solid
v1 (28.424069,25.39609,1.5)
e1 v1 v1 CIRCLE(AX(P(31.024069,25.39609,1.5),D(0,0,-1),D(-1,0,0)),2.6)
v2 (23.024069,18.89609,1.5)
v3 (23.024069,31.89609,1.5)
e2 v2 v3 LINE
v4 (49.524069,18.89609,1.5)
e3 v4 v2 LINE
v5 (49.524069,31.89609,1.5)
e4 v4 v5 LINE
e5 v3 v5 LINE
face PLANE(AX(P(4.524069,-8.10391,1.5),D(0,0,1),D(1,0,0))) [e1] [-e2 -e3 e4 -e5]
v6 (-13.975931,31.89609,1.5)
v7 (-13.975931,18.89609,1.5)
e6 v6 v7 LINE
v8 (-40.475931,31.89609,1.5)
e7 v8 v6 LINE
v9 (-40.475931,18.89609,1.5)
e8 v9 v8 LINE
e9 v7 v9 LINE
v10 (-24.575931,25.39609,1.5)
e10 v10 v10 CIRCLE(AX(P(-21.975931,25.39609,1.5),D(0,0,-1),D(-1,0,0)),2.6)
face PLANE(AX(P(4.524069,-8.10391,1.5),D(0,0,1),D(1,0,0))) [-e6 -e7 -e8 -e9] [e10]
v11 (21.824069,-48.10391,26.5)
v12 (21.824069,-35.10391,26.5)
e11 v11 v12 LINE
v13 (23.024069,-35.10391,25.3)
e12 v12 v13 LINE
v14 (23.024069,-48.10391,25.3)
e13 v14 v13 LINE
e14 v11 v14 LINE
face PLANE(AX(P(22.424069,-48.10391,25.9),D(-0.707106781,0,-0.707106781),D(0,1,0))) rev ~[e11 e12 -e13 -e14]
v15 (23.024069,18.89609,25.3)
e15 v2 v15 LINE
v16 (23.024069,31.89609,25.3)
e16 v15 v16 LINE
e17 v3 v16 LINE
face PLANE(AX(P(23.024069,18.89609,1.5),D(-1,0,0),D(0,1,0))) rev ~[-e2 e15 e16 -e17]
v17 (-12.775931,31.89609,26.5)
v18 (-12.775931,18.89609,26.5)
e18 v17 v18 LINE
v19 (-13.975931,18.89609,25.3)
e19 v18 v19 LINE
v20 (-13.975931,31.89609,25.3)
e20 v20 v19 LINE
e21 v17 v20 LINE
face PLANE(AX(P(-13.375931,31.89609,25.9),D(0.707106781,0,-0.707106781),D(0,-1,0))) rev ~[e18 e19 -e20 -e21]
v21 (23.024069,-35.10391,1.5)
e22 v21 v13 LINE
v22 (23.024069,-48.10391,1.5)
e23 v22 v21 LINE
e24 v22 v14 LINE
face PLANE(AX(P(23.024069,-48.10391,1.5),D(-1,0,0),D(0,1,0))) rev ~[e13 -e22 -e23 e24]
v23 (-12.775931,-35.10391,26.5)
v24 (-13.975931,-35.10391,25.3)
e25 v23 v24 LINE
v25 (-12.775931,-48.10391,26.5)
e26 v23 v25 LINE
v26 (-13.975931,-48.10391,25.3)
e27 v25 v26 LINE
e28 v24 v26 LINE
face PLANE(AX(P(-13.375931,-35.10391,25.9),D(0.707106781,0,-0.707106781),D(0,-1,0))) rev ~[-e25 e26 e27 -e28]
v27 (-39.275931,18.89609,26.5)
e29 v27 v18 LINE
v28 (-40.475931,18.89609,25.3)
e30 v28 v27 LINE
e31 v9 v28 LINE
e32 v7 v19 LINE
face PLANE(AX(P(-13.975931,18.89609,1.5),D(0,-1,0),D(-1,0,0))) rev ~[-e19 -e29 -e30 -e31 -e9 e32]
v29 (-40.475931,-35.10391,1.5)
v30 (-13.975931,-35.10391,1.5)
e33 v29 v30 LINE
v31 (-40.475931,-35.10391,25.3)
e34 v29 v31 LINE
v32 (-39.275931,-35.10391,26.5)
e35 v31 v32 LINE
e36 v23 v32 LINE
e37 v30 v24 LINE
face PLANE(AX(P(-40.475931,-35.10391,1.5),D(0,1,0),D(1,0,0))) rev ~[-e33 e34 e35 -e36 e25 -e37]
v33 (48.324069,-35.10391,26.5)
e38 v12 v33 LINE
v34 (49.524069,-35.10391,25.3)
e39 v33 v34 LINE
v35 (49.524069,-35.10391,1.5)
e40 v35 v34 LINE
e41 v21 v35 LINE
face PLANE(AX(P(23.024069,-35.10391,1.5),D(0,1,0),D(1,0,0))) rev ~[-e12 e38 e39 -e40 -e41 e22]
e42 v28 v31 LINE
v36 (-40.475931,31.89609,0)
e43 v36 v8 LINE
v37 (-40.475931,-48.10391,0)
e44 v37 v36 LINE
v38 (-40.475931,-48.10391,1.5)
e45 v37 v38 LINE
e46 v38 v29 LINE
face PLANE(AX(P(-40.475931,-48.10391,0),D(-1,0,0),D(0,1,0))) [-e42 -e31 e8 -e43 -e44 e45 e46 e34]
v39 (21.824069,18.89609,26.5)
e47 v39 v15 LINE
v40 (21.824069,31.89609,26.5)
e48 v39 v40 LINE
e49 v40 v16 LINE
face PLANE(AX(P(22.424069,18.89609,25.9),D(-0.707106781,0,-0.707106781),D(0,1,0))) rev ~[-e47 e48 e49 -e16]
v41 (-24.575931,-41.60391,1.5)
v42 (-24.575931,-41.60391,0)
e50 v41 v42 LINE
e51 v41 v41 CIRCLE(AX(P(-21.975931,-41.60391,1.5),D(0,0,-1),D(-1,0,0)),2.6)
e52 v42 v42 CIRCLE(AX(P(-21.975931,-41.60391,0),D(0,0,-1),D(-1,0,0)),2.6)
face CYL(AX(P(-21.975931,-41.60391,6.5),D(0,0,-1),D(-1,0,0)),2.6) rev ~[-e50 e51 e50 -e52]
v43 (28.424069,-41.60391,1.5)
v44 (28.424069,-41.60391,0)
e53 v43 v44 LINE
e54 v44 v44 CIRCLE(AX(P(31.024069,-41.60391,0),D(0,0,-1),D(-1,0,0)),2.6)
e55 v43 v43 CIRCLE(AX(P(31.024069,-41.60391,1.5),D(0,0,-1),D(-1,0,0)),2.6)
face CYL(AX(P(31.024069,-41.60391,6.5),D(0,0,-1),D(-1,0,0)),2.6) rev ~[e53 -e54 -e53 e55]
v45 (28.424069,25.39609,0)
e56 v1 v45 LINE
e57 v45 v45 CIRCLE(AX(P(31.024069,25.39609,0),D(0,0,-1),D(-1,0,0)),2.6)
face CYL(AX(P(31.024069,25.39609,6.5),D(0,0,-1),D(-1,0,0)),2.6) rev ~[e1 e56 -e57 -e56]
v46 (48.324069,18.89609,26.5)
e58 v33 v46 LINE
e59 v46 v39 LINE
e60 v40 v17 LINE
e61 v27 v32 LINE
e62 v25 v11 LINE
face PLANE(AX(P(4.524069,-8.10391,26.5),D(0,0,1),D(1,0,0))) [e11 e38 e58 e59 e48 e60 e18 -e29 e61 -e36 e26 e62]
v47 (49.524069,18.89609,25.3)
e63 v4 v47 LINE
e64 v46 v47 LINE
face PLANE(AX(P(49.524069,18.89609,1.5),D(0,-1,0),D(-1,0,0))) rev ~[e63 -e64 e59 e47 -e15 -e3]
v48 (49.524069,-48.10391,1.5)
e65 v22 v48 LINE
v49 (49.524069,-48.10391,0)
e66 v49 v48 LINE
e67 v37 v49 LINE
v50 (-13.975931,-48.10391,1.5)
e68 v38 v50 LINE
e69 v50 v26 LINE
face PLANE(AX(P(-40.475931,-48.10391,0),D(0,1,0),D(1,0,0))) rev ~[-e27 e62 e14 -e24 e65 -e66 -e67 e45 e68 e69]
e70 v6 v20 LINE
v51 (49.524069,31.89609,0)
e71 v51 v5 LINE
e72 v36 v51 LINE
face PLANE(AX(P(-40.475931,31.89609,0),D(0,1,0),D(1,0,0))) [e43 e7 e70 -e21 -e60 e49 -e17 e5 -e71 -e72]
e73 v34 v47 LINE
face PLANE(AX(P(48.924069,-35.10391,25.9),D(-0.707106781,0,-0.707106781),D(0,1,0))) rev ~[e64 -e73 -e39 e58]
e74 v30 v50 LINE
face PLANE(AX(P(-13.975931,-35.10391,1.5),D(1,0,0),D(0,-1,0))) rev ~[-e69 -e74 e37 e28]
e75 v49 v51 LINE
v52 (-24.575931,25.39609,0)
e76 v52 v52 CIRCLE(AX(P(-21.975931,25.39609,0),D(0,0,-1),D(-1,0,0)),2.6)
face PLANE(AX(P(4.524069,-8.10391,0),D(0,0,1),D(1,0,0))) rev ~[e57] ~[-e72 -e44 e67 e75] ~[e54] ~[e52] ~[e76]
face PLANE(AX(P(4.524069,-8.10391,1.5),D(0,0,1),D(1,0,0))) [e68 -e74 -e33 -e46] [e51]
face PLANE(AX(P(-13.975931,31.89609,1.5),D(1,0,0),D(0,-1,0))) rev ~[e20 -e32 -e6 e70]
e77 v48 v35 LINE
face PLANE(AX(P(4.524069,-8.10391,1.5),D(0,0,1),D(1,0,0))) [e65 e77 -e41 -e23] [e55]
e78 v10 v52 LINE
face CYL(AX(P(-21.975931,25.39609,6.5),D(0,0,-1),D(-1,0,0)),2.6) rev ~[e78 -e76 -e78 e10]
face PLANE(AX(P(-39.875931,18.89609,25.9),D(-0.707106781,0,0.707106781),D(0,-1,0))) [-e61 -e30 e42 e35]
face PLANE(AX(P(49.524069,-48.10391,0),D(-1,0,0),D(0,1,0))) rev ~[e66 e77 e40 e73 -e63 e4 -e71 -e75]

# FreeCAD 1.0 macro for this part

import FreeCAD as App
import Part
import Sketcher


def edges_at(feature, points):
    """Names of the edges that pass closest to the given points."""
    edges = feature.Shape.Edges
    near = lambda p: min(range(len(edges)), key=lambda i: edges[i].distToShape(Part.Vertex(*p))[0])
    return sorted({f"Edge{near(p) + 1}" for p in points})


def add_polygon(sketch, points):
    """Adds a closed chain of lines whose ends are joined by coincident constraints."""
    first, n = sketch.GeometryCount, len(points)
    for a, b in zip(points, points[1:] + points[:1]):
        sketch.addGeometry(Part.LineSegment(App.Vector(*a, 0), App.Vector(*b, 0)), False)
    for i in range(n):
        sketch.addConstraint(Sketcher.Constraint("Coincident", first + i, 2, first + (i + 1) % n, 1))

doc = App.newDocument("Part")
body = doc.addObject("PartDesign::Body", "Body")

sketch1 = body.newObject("Sketcher::SketchObject", "Sketch")
sketch1.AttachmentSupport = (doc.getObject("XY_Plane"), [""])
sketch1.MapMode = "FlatFace"
add_polygon(sketch1, [(-40, 32), (-40, -48), (50, -48), (50, 32)])
sketch1.addConstraint(Sketcher.Constraint("Vertical", 0))
sketch1.addConstraint(Sketcher.Constraint("Horizontal", 1))
sketch1.addConstraint(Sketcher.Constraint("Vertical", 2))
sketch1.addConstraint(Sketcher.Constraint("Horizontal", 3))
sketch1.addConstraint(Sketcher.Constraint("DistanceX", 1, 1, 1, 2, 90.0))
sketch1.addConstraint(Sketcher.Constraint("DistanceY", 0, 2, 0, 1, 80.0))
sketch1.addConstraint(Sketcher.Constraint("DistanceX", 0, 2, -1, 1, 40.475931))
sketch1.addConstraint(Sketcher.Constraint("DistanceY", 0, 2, -1, 1, 48.10391))
pad1 = body.newObject("PartDesign::Pad", "Pad")
pad1.Profile = sketch1
pad1.Length = 1.5

sketch2 = body.newObject("Sketcher::SketchObject", "Sketch001")
sketch2.AttachmentSupport = (doc.getObject("XY_Plane"), [""])
sketch2.MapMode = "FlatFace"
sketch2.AttachmentOffset = App.Placement(App.Vector(0, 0, 1.5), App.Rotation())
add_polygon(sketch2, [(-14, 32), (-14, 19), (-40, 19), (-40, -35), (-14, -35), (-14, -48), (23, -48), (23, -35), (50, -35), (50, 19), (23, 19), (23, 32)])
sketch2.addConstraint(Sketcher.Constraint("Vertical", 0))
sketch2.addConstraint(Sketcher.Constraint("Horizontal", 1))
sketch2.addConstraint(Sketcher.Constraint("Vertical", 2))
sketch2.addConstraint(Sketcher.Constraint("Horizontal", 3))
sketch2.addConstraint(Sketcher.Constraint("Vertical", 4))
sketch2.addConstraint(Sketcher.Constraint("Horizontal", 5))
sketch2.addConstraint(Sketcher.Constraint("Vertical", 6))
sketch2.addConstraint(Sketcher.Constraint("Horizontal", 7))
sketch2.addConstraint(Sketcher.Constraint("Vertical", 8))
sketch2.addConstraint(Sketcher.Constraint("Horizontal", 9))
sketch2.addConstraint(Sketcher.Constraint("Vertical", 10))
sketch2.addConstraint(Sketcher.Constraint("Horizontal", 11))
sketch2.addConstraint(Sketcher.Constraint("Horizontal", 3, 2, 6, 2))
sketch2.addConstraint(Sketcher.Constraint("Horizontal", 1, 2, 8, 2))
sketch2.addConstraint(Sketcher.Constraint("Vertical", 0, 2, 3, 2))
sketch2.addConstraint(Sketcher.Constraint("Vertical", 6, 2, 9, 2))
sketch2.addConstraint(Sketcher.Constraint("Equal", 3, 7))
sketch2.addConstraint(Sketcher.Constraint("Equal", 0, 4))
sketch2.addConstraint(Sketcher.Constraint("DistanceX", 5, 1, 5, 2, 37.0))
sketch2.addConstraint(Sketcher.Constraint("DistanceY", 0, 2, 0, 1, 13.0))
sketch2.addConstraint(Sketcher.Constraint("DistanceY", 2, 2, 2, 1, 54.0))
sketch2.addConstraint(Sketcher.Constraint("DistanceX", 1, 2, 1, 1, 26.5))
sketch2.addConstraint(Sketcher.Constraint("DistanceX", 0, 2, -1, 1, 13.975931))
sketch2.addConstraint(Sketcher.Constraint("DistanceY", -1, 1, 0, 2, 18.89609))
pad2 = body.newObject("PartDesign::Pad", "Pad001")
pad2.Profile = sketch2
pad2.Length = 25

sketch3 = body.newObject("Sketcher::SketchObject", "Sketch002")
sketch3.AttachmentSupport = (doc.getObject("XY_Plane"), [""])
sketch3.MapMode = "FlatFace"
sketch3.AttachmentOffset = App.Placement(App.Vector(0, 0, 1.5), App.Rotation())
sketch3.addGeometry(Part.Circle(App.Vector(-22, 25.4, 0), App.Vector(0, 0, 1), 2.6), False)
sketch3.addGeometry(Part.Circle(App.Vector(31, 25.4, 0), App.Vector(0, 0, 1), 2.6), False)
sketch3.addGeometry(Part.Circle(App.Vector(31, -41.6, 0), App.Vector(0, 0, 1), 2.6), False)
sketch3.addGeometry(Part.Circle(App.Vector(-22, -41.6, 0), App.Vector(0, 0, 1), 2.6), False)
sketch3.addConstraint(Sketcher.Constraint("Equal", 0, 1))
sketch3.addConstraint(Sketcher.Constraint("Equal", 1, 2))
sketch3.addConstraint(Sketcher.Constraint("Equal", 2, 3))
sketch3.addConstraint(Sketcher.Constraint("Horizontal", 0, 3, 1, 3))
sketch3.addConstraint(Sketcher.Constraint("Horizontal", 2, 3, 3, 3))
sketch3.addConstraint(Sketcher.Constraint("Vertical", 1, 3, 2, 3))
sketch3.addConstraint(Sketcher.Constraint("Vertical", 0, 3, 3, 3))
sketch3.addConstraint(Sketcher.Constraint("Diameter", 0, 5.2))
sketch3.addConstraint(Sketcher.Constraint("DistanceX", 0, 3, 1, 3, 53.0))
sketch3.addConstraint(Sketcher.Constraint("DistanceY", 2, 3, 1, 3, 67.0))
sketch3.addConstraint(Sketcher.Constraint("DistanceX", 0, 3, -1, 1, 21.975931))
sketch3.addConstraint(Sketcher.Constraint("DistanceY", -1, 1, 0, 3, 25.39609))
doc.recompute()
hole = body.newObject("PartDesign::Hole", "Hole")
hole.Profile = sketch3
hole.ThreadType = "None"
hole.Diameter = 5.2
hole.DepthType = "Dimension"
hole.Depth = 5
hole.DrillPoint = "Angled"
hole.DrillPointAngle = 118
doc.recompute()

chamfer = body.newObject("PartDesign::Chamfer", "Chamfer")
chamfer.Base = (hole, edges_at(hole, [
    (-40.476, -8.104, 26.5),
    (-13.976, -41.604, 26.5),
    (-13.976, 25.396, 26.5),
    (23.024, 25.396, 26.5),
    (23.024, -41.604, 26.5),
    (49.524, -8.104, 26.5),
]))
chamfer.Size = 1.2

doc.recompute()
